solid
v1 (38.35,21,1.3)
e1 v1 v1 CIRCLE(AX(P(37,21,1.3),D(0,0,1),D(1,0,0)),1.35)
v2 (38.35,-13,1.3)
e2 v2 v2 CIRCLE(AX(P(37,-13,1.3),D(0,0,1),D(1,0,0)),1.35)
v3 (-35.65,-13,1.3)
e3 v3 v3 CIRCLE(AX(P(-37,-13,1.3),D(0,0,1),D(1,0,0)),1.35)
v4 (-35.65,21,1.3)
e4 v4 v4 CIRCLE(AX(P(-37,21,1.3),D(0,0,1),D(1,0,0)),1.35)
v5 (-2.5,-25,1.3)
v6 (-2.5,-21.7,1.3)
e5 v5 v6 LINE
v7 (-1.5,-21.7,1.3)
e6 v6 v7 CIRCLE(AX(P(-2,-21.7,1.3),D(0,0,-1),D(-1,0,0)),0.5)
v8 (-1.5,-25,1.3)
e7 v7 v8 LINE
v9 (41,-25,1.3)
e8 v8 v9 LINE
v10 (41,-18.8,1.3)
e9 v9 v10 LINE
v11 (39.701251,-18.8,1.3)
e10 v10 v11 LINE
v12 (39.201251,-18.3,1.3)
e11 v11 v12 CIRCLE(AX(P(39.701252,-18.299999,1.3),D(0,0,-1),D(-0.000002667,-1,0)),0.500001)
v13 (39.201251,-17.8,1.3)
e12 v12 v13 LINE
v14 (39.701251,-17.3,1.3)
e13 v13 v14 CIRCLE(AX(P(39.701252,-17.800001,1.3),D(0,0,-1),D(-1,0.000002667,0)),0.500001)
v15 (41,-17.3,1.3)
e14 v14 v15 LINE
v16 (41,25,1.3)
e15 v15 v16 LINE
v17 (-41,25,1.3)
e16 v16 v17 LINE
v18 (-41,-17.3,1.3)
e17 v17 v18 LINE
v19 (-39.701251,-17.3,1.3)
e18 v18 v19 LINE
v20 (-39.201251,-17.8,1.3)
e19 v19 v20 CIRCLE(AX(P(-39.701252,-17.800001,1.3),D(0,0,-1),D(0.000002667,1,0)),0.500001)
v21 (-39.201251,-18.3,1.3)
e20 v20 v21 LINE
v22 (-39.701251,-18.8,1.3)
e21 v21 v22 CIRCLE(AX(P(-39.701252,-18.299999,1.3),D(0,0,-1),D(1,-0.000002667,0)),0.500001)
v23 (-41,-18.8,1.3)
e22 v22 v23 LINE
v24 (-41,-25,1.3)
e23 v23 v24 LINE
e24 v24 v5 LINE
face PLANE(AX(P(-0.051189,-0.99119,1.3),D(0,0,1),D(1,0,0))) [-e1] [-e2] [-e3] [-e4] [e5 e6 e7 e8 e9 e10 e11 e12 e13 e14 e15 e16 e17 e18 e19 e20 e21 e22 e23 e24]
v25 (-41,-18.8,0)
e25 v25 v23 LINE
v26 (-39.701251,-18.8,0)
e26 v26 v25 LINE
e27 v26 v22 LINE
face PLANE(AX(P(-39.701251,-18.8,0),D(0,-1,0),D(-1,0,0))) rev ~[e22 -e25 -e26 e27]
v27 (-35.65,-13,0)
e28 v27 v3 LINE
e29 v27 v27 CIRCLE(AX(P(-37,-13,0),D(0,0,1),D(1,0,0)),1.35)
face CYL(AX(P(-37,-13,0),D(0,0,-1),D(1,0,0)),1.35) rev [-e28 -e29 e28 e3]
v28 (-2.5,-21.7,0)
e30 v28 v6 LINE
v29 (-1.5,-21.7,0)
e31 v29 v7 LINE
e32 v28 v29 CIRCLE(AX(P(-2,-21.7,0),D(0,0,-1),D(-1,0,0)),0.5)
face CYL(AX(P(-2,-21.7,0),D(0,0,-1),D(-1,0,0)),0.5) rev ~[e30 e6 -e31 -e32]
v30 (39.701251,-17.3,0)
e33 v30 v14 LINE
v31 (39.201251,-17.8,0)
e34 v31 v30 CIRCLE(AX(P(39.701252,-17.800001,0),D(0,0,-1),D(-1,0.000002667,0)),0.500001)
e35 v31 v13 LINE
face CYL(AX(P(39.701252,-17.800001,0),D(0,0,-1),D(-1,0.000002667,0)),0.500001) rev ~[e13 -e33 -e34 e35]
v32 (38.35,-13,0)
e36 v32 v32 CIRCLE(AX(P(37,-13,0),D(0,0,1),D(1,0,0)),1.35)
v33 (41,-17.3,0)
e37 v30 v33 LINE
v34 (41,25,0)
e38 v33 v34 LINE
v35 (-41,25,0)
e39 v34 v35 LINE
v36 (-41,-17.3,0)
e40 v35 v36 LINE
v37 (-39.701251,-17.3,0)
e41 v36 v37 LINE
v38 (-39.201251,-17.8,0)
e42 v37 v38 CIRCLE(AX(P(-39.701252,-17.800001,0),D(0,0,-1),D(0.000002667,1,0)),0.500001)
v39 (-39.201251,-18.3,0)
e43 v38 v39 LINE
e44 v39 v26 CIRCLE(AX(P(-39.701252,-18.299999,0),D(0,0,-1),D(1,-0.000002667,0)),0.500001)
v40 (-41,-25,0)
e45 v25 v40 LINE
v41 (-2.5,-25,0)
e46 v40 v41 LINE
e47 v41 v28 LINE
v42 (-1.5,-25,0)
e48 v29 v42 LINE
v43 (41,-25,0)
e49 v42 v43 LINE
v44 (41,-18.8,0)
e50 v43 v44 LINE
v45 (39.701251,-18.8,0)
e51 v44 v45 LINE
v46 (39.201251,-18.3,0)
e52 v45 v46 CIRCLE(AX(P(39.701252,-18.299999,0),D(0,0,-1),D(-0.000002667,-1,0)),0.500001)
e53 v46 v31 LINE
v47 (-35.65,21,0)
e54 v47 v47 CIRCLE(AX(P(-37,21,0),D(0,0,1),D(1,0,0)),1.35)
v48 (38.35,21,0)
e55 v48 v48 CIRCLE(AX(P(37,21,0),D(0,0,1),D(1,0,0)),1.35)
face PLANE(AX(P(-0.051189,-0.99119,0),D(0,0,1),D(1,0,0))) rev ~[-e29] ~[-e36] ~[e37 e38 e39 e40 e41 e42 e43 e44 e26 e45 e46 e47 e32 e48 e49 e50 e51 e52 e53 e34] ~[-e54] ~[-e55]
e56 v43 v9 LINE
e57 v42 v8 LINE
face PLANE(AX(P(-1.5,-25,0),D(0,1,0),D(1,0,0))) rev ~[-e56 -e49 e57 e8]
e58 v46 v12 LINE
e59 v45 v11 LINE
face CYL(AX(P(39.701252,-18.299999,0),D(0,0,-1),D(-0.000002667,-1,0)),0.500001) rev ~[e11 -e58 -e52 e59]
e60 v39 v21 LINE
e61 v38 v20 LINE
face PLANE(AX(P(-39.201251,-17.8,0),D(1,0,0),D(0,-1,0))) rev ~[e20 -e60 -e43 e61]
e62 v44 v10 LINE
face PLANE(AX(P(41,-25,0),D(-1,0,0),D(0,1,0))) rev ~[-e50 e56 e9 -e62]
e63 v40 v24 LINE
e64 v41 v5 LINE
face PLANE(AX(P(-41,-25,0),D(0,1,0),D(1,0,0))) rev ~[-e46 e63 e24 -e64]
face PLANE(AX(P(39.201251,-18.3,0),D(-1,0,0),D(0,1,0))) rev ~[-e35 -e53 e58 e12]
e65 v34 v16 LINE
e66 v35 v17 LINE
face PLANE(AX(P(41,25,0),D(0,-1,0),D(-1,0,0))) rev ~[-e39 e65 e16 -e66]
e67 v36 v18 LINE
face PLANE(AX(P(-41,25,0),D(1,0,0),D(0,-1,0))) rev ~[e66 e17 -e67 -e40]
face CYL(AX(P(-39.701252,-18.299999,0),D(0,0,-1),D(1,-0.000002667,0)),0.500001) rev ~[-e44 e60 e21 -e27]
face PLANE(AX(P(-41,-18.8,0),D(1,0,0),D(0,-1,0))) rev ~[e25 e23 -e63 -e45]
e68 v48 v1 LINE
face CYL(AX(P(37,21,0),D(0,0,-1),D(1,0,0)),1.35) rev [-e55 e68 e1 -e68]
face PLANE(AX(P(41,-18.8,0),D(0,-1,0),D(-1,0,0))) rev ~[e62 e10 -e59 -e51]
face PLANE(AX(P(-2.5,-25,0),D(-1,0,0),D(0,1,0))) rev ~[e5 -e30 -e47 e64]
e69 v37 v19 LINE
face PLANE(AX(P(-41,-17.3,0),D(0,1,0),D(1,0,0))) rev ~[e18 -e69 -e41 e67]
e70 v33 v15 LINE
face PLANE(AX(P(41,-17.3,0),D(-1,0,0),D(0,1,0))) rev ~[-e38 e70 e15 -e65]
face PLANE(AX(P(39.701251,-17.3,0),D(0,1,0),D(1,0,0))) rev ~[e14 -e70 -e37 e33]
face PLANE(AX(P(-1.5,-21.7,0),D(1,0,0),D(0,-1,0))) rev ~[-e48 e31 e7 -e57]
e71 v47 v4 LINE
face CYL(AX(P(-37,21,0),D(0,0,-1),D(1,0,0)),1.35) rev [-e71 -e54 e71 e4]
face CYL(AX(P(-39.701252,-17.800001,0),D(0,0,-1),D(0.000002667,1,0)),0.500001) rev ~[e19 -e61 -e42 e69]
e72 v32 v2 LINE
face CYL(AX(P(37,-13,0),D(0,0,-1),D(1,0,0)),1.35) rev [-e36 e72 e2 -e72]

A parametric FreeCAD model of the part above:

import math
import FreeCAD as App
import Part
import Sketcher
from FreeCAD import Vector

doc = App.newDocument("Part")
body = doc.addObject("PartDesign::Body", "Body")

# Sketch on XY plane
sketch1 = body.newObject("Sketcher::SketchObject", "Sketch")
sketch1.AttachmentSupport = (doc.getObject("XY_Plane"), [""])
sketch1.MapMode = "FlatFace"
sketch1.addGeometry(Part.LineSegment(Vector(41, -17.3, 0), Vector(41, 25, 0)), False)
sketch1.addGeometry(Part.LineSegment(Vector(41, 25, 0), Vector(-41, 25, 0)), False)
sketch1.addGeometry(Part.LineSegment(Vector(-41, 25, 0), Vector(-41, -17.3, 0)), False)
sketch1.addGeometry(Part.LineSegment(Vector(-41, -17.3, 0), Vector(-39.7, -17.3, 0)), False)
sketch1.addGeometry(Part.ArcOfCircle(Part.Circle(Vector(-39.7, -17.8, 0), Vector(0, 0, 1), 0.5), math.radians(0), math.radians(90)), False)
sketch1.addGeometry(Part.LineSegment(Vector(-39.2, -17.8, 0), Vector(-39.2, -18.3, 0)), False)
sketch1.addGeometry(Part.ArcOfCircle(Part.Circle(Vector(-39.7, -18.3, 0), Vector(0, 0, 1), 0.5), math.radians(-90), math.radians(0)), False)
sketch1.addGeometry(Part.LineSegment(Vector(-39.7, -18.8, 0), Vector(-41, -18.8, 0)), False)
sketch1.addGeometry(Part.LineSegment(Vector(-41, -18.8, 0), Vector(-41, -25, 0)), False)
sketch1.addGeometry(Part.LineSegment(Vector(-41, -25, 0), Vector(-2.5, -25, 0)), False)
sketch1.addGeometry(Part.LineSegment(Vector(-2.5, -25, 0), Vector(-2.5, -21.7, 0)), False)
sketch1.addGeometry(Part.ArcOfCircle(Part.Circle(Vector(-2, -21.7, 0), Vector(0, 0, 1), 0.5), math.radians(0), math.radians(180)), False)
sketch1.addGeometry(Part.LineSegment(Vector(-1.5, -21.7, 0), Vector(-1.5, -25, 0)), False)
sketch1.addGeometry(Part.LineSegment(Vector(-1.5, -25, 0), Vector(41, -25, 0)), False)
sketch1.addGeometry(Part.LineSegment(Vector(41, -25, 0), Vector(41, -18.8, 0)), False)
sketch1.addGeometry(Part.LineSegment(Vector(41, -18.8, 0), Vector(39.7, -18.8, 0)), False)
sketch1.addGeometry(Part.ArcOfCircle(Part.Circle(Vector(39.7, -18.3, 0), Vector(0, 0, 1), 0.5), math.radians(-180), math.radians(-90)), False)
sketch1.addGeometry(Part.LineSegment(Vector(39.2, -18.3, 0), Vector(39.2, -17.8, 0)), False)
sketch1.addGeometry(Part.ArcOfCircle(Part.Circle(Vector(39.7, -17.8, 0), Vector(0, 0, 1), 0.5), math.radians(90), math.radians(180)), False)
sketch1.addGeometry(Part.LineSegment(Vector(39.7, -17.3, 0), Vector(41, -17.3, 0)), False)
sketch1.addGeometry(Part.Circle(Vector(-37, -13, 0), Vector(0, 0, 1), 1.4), False)
sketch1.addGeometry(Part.Circle(Vector(37, -13, 0), Vector(0, 0, 1), 1.4), False)
sketch1.addGeometry(Part.Circle(Vector(-37, 21, 0), Vector(0, 0, 1), 1.4), False)
sketch1.addGeometry(Part.Circle(Vector(37, 21, 0), Vector(0, 0, 1), 1.4), False)
sketch1.addConstraint(Sketcher.Constraint("Coincident", 0, 2, 1, 1))
sketch1.addConstraint(Sketcher.Constraint("Coincident", 1, 2, 2, 1))
sketch1.addConstraint(Sketcher.Constraint("Coincident", 2, 2, 3, 1))
sketch1.addConstraint(Sketcher.Constraint("Coincident", 3, 2, 4, 2))
sketch1.addConstraint(Sketcher.Constraint("Coincident", 4, 1, 5, 1))
sketch1.addConstraint(Sketcher.Constraint("Coincident", 5, 2, 6, 2))
sketch1.addConstraint(Sketcher.Constraint("Coincident", 6, 1, 7, 1))
sketch1.addConstraint(Sketcher.Constraint("Coincident", 7, 2, 8, 1))
sketch1.addConstraint(Sketcher.Constraint("Coincident", 8, 2, 9, 1))
sketch1.addConstraint(Sketcher.Constraint("Coincident", 9, 2, 10, 1))
sketch1.addConstraint(Sketcher.Constraint("Tangent", 10, 2, 11, 2))
sketch1.addConstraint(Sketcher.Constraint("Tangent", 11, 1, 12, 1))
sketch1.addConstraint(Sketcher.Constraint("Coincident", 12, 2, 13, 1))
sketch1.addConstraint(Sketcher.Constraint("Coincident", 13, 2, 14, 1))
sketch1.addConstraint(Sketcher.Constraint("Coincident", 14, 2, 15, 1))
sketch1.addConstraint(Sketcher.Constraint("Coincident", 15, 2, 16, 2))
sketch1.addConstraint(Sketcher.Constraint("Coincident", 16, 1, 17, 1))
sketch1.addConstraint(Sketcher.Constraint("Coincident", 17, 2, 18, 2))
sketch1.addConstraint(Sketcher.Constraint("Coincident", 18, 1, 19, 1))
sketch1.addConstraint(Sketcher.Constraint("Coincident", 19, 2, 0, 1))
sketch1.addConstraint(Sketcher.Constraint("Vertical", 0))
sketch1.addConstraint(Sketcher.Constraint("Horizontal", 1))
sketch1.addConstraint(Sketcher.Constraint("Vertical", 2))
sketch1.addConstraint(Sketcher.Constraint("Horizontal", 3))
sketch1.addConstraint(Sketcher.Constraint("Vertical", 5))
sketch1.addConstraint(Sketcher.Constraint("Horizontal", 7))
sketch1.addConstraint(Sketcher.Constraint("Vertical", 8))
sketch1.addConstraint(Sketcher.Constraint("Horizontal", 9))
sketch1.addConstraint(Sketcher.Constraint("Vertical", 10))
sketch1.addConstraint(Sketcher.Constraint("Vertical", 12))
sketch1.addConstraint(Sketcher.Constraint("Horizontal", 13))
sketch1.addConstraint(Sketcher.Constraint("Vertical", 14))
sketch1.addConstraint(Sketcher.Constraint("Horizontal", 15))
sketch1.addConstraint(Sketcher.Constraint("Vertical", 17))
sketch1.addConstraint(Sketcher.Constraint("Horizontal", 19))
sketch1.addConstraint(Sketcher.Constraint("Equal", 4, 6))
sketch1.addConstraint(Sketcher.Constraint("Equal", 6, 11))
sketch1.addConstraint(Sketcher.Constraint("Equal", 11, 16))
sketch1.addConstraint(Sketcher.Constraint("Equal", 16, 18))
sketch1.addConstraint(Sketcher.Constraint("Equal", 20, 21))
sketch1.addConstraint(Sketcher.Constraint("Equal", 21, 22))
sketch1.addConstraint(Sketcher.Constraint("Equal", 22, 23))
sketch1.addConstraint(Sketcher.Constraint("Symmetric", 0, 2, 8, 2, -1, 1))
sketch1.addConstraint(Sketcher.Constraint("Symmetric", 1, 2, 13, 2, -1, 1))
sketch1.addConstraint(Sketcher.Constraint("Symmetric", 6, 3, 16, 3, -2))
sketch1.addConstraint(Sketcher.Constraint("Symmetric", 20, 3, 21, 3, -2))
sketch1.addConstraint(Sketcher.Constraint("Symmetric", 22, 3, 23, 3, -2))
sketch1.addConstraint(Sketcher.Constraint("Symmetric", 3, 2, 18, 1, -2))
sketch1.addConstraint(Sketcher.Constraint("Horizontal", 18, 3, 4, 1))
sketch1.addConstraint(Sketcher.Constraint("Horizontal", 16, 3, 5, 2))
sketch1.addConstraint(Sketcher.Constraint("Horizontal", 5, 2, 16, 1))
sketch1.addConstraint(Sketcher.Constraint("Horizontal", 4, 1, 17, 2))
sketch1.addConstraint(Sketcher.Constraint("Vertical", 20, 3, 22, 3))
sketch1.addConstraint(Sketcher.Constraint("Vertical", 6, 3, 3, 2))
sketch1.addConstraint(Sketcher.Constraint("Vertical", 3, 2, 6, 1))
sketch1.addConstraint(Sketcher.Constraint("Vertical", 2, 2, 7, 2))
sketch1.addConstraint(Sketcher.Constraint("Vertical", 18, 3, 15, 2))
sketch1.addConstraint(Sketcher.Constraint("Diameter", 20, 2.7))
sketch1.addConstraint(Sketcher.Constraint("Radius", 4, 0.500001))
sketch1.addConstraint(Sketcher.Constraint("DistanceX", 1, 2, 1, 1, 82.0))
sketch1.addConstraint(Sketcher.Constraint("DistanceX", 9, 1, 9, 2, 38.5))
sketch1.addConstraint(Sketcher.Constraint("DistanceY", 0, 1, 0, 2, 42.3))
sketch1.addConstraint(Sketcher.Constraint("DistanceY", 5, 2, 5, 1, 0.5))
sketch1.addConstraint(Sketcher.Constraint("DistanceY", 8, 2, 8, 1, 6.2))
sketch1.addConstraint(Sketcher.Constraint("DistanceY", 10, 1, 10, 2, 3.3))
sketch1.addConstraint(Sketcher.Constraint("DistanceX", 20, 3, -1, 1, 37.0))
sketch1.addConstraint(Sketcher.Constraint("DistanceY", 20, 3, -1, 1, 13.0))
sketch1.addConstraint(Sketcher.Constraint("DistanceY", -1, 1, 22, 3, 21.0))
sketch1.addConstraint(Sketcher.Constraint("DistanceX", 3, 1, 3, 2, 1.298749))
pad1 = body.newObject("PartDesign::Pad", "Pad")
pad1.Profile = sketch1
pad1.Length = 1.3

doc.recompute()
